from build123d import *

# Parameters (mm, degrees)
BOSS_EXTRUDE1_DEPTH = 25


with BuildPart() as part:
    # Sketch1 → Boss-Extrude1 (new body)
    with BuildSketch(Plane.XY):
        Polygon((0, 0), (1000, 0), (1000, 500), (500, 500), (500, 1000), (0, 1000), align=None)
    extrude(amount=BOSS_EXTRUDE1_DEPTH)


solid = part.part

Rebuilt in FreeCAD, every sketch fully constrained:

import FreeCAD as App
import Part
import Sketcher


def add_polygon(sketch, points):
    """Adds a closed chain of lines whose ends are joined by coincident constraints."""
    first, n = sketch.GeometryCount, len(points)
    for a, b in zip(points, points[1:] + points[:1]):
        sketch.addGeometry(Part.LineSegment(App.Vector(*a, 0), App.Vector(*b, 0)), False)
    for i in range(n):
        sketch.addConstraint(Sketcher.Constraint("Coincident", first + i, 2, first + (i + 1) % n, 1))

doc = App.newDocument("Part")
body = doc.addObject("PartDesign::Body", "Body")

sketch1 = doc.addObject("Sketcher::SketchObject", "Sketch")
body.addObject(sketch1)
sketch1.AttachmentSupport = (doc.XY_Plane, [""])
sketch1.MapMode = "FlatFace"
add_polygon(sketch1, [(0, 0), (1000, 0), (1000, 500), (500, 500), (500, 1000), (0, 1000)])
sketch1.addConstraint([
    Sketcher.Constraint("Horizontal", 0),
    Sketcher.Constraint("Vertical", 1),
    Sketcher.Constraint("Horizontal", 2),
    Sketcher.Constraint("Vertical", 3),
    Sketcher.Constraint("Horizontal", 4),
    Sketcher.Constraint("Vertical", 5),
    Sketcher.Constraint("Coincident", 5, 2, -1, 1),
    Sketcher.Constraint("Equal", 2, 4),
    Sketcher.Constraint("Equal", 4, 1),
    Sketcher.Constraint("Equal", 1, 3),
    Sketcher.Constraint("DistanceX", 0, 1, 0, 2, 1000.0),
])
pad1 = doc.addObject("PartDesign::Pad", "Pad")
body.addObject(pad1)
pad1.Profile = sketch1
pad1.Length = 25

doc.recompute()
